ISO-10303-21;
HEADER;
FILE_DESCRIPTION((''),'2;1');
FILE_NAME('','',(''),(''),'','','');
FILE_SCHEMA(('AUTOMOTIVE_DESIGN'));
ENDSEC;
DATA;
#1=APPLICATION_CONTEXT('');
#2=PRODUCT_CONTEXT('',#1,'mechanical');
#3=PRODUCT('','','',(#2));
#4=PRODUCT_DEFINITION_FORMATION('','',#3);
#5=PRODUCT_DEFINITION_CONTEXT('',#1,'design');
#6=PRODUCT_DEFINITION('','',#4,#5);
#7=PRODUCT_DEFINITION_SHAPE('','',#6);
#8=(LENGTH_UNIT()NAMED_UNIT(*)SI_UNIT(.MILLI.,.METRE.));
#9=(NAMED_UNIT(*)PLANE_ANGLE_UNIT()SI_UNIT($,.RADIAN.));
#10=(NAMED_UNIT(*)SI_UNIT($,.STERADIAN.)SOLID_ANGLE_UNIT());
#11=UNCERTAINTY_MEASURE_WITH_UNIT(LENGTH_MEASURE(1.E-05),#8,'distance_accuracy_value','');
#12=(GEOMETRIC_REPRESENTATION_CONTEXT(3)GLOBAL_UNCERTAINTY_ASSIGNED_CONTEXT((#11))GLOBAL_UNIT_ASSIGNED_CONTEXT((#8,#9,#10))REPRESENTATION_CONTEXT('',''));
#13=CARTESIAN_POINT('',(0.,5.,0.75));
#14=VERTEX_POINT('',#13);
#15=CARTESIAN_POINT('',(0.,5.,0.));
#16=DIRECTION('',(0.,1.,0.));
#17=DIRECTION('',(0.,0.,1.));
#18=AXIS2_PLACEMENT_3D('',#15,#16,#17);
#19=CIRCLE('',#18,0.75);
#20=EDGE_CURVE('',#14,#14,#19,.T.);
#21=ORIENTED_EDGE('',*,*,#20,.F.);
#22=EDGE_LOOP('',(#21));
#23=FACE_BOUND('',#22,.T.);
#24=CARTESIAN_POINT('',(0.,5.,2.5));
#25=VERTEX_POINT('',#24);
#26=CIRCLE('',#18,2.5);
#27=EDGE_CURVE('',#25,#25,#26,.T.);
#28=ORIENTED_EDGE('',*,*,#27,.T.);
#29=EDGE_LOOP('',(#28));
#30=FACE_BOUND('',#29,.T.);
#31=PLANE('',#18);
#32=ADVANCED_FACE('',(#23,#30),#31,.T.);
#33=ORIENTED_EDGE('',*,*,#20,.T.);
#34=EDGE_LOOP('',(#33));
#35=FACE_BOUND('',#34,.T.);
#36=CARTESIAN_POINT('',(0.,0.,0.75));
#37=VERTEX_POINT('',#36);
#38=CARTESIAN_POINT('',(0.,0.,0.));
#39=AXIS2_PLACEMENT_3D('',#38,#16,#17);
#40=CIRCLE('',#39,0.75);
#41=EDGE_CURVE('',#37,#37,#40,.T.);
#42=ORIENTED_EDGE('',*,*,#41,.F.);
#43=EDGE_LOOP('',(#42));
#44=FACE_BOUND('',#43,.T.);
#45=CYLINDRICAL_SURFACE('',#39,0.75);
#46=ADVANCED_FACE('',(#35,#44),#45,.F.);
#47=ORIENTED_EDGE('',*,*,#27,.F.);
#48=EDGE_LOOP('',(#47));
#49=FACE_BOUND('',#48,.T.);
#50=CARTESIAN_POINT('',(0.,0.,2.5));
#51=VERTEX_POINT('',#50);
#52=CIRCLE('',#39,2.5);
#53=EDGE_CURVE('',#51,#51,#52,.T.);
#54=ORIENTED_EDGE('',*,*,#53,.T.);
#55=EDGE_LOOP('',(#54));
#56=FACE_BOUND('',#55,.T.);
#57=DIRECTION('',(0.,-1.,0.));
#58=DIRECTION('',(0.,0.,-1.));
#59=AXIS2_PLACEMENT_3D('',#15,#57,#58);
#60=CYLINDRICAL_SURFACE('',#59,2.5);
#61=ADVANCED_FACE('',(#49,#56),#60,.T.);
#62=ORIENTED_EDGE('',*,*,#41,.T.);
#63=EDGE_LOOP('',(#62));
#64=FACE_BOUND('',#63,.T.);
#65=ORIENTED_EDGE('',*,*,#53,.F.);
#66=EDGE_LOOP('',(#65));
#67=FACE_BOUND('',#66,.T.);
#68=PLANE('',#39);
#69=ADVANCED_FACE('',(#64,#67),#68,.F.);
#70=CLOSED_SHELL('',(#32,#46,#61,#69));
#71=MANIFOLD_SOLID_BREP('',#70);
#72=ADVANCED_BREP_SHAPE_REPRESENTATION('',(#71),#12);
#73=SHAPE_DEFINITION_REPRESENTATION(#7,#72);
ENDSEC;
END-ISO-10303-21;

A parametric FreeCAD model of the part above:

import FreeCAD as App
import Part
import Sketcher
Q = App.Units.Quantity

doc = App.newDocument("Part")
body = doc.addObject("PartDesign::Body", "Body")

# Sketch on XZ plane
sketch1 = body.newObject("Sketcher::SketchObject", "Sketch")
sketch1.AttachmentSupport = (doc.getObject("XZ_Plane"), [""])
sketch1.MapMode = "FlatFace"
sketch1.addGeometry(Part.Circle(App.Vector(0, 0, 0), App.Vector(0, 0, 1), 2.5), False)
sketch1.addConstraint([
    Sketcher.Constraint("Coincident", 0, 3, -1, 1),
    Sketcher.Constraint("Diameter", 0, Q("5 mm")),
])
pad1 = body.newObject("PartDesign::Pad", "Pad")
pad1.Profile = sketch1
pad1.Length = 5
pad1.Reversed = True

# Sketch on XZ plane
sketch2 = body.newObject("Sketcher::SketchObject", "Sketch001")
sketch2.AttachmentSupport = (doc.getObject("XZ_Plane"), [""])
sketch2.MapMode = "FlatFace"
sketch2.AttachmentOffset = App.Placement(App.Vector(0, 0, -5), App.Rotation())
sketch2.addGeometry(Part.Circle(App.Vector(0, 0, 0), App.Vector(0, 0, 1), 0.8), False)
sketch2.addConstraint([
    Sketcher.Constraint("Coincident", 0, 3, -1, 1),
    Sketcher.Constraint("Diameter", 0, Q("1.5 mm")),
])
pocket1 = body.newObject("PartDesign::Pocket", "Pocket")
pocket1.Profile = sketch2
pocket1.Length = 5
pocket1.Reversed = True

doc.recompute()
